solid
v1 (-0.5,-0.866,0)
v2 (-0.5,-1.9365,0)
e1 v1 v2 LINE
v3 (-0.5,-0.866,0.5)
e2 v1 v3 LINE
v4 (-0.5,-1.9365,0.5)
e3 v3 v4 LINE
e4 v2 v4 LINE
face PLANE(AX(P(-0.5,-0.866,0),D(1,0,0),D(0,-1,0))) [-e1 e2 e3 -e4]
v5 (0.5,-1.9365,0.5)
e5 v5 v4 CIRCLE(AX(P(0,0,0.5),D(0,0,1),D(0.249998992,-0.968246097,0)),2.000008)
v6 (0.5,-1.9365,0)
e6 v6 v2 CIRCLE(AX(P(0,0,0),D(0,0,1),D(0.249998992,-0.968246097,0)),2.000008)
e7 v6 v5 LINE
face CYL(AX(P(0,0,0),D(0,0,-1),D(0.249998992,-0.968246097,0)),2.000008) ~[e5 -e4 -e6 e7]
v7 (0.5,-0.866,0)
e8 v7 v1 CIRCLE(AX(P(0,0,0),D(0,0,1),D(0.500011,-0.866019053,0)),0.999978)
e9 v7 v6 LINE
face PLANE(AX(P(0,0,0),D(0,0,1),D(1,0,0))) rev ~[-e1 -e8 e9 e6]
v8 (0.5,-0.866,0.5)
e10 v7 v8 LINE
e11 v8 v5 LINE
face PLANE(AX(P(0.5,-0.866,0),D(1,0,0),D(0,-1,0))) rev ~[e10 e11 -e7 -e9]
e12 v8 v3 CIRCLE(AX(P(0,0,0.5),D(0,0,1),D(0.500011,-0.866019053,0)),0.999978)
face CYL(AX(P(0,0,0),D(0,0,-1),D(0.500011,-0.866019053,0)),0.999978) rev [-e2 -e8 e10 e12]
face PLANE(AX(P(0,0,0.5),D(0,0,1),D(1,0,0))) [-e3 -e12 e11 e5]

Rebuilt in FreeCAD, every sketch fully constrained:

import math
import FreeCAD as App
import Part
import Sketcher

V = App.Vector
Q = App.Units.Quantity

doc = App.newDocument("Part")
params = doc.addObject("Spreadsheet::Sheet", "Params")
for row, (alias, value) in enumerate([
    ("sketch1_radius", "1 mm"),
    ("sketch1_radius2", "2 mm"),
    ("pad1_length", "0.5 mm"),
], start=1):
    params.set(f"A{row}", alias)
    params.set(f"B{row}", "=" + value)
    params.setAlias(f"B{row}", alias)

body = doc.addObject("PartDesign::Body", "Body")

sketch1 = body.newObject("Sketcher::SketchObject", "Sketch")
sketch1.AttachmentSupport = (doc.getObject("XY_Plane"), [""])
sketch1.MapMode = "FlatFace"
sketch1.addGeometry(Part.ArcOfCircle(Part.Circle(V(0, 0, 0), V(0, 0, 1), 0.999978), math.radians(-59.999272), math.radians(239.999272)), False)
sketch1.addGeometry(Part.LineSegment(V(0.5, -0.866, 0), V(0.5, -1.9365, 0)), False)
sketch1.addGeometry(Part.ArcOfCircle(Part.Circle(V(0, 0, 0), V(0, 0, 1), 2.000008), math.radians(-75.522547), math.radians(255.522547)), False)
sketch1.addGeometry(Part.LineSegment(V(-0.5, -1.9365, 0), V(-0.5, -0.866, 0)), False)
sketch1.addConstraint(Sketcher.Constraint("Coincident", 0, 1, 1, 1))
sketch1.addConstraint(Sketcher.Constraint("Coincident", 1, 2, 2, 1))
sketch1.addConstraint(Sketcher.Constraint("Coincident", 2, 2, 3, 1))
sketch1.addConstraint(Sketcher.Constraint("Coincident", 3, 2, 0, 2))
sketch1.addConstraint(Sketcher.Constraint("Vertical", 1))
sketch1.addConstraint(Sketcher.Constraint("Vertical", 3))
sketch1.addConstraint(Sketcher.Constraint("Coincident", 0, 3, -1, 1))
sketch1.addConstraint(Sketcher.Constraint("Coincident", 2, 3, -1, 1))
sketch1.addConstraint(Sketcher.Constraint("Horizontal", 1, 2, 2, 2))
sketch1.addConstraint(Sketcher.Constraint("Radius", 0, Q("1 mm")))
sketch1.addConstraint(Sketcher.Constraint("Radius", 2, Q("2 mm")))
sketch1.addConstraint(Sketcher.Constraint("DistanceX", 2, 2, 1, 2, Q("1 mm")))
sketch1.setExpression("Constraints[9]", "Params.sketch1_radius")
sketch1.setExpression("Constraints[10]", "Params.sketch1_radius2")
pad1 = body.newObject("PartDesign::Pad", "Pad")
pad1.Profile = sketch1
pad1.setExpression("Length", "Params.pad1_length")

doc.recompute()
